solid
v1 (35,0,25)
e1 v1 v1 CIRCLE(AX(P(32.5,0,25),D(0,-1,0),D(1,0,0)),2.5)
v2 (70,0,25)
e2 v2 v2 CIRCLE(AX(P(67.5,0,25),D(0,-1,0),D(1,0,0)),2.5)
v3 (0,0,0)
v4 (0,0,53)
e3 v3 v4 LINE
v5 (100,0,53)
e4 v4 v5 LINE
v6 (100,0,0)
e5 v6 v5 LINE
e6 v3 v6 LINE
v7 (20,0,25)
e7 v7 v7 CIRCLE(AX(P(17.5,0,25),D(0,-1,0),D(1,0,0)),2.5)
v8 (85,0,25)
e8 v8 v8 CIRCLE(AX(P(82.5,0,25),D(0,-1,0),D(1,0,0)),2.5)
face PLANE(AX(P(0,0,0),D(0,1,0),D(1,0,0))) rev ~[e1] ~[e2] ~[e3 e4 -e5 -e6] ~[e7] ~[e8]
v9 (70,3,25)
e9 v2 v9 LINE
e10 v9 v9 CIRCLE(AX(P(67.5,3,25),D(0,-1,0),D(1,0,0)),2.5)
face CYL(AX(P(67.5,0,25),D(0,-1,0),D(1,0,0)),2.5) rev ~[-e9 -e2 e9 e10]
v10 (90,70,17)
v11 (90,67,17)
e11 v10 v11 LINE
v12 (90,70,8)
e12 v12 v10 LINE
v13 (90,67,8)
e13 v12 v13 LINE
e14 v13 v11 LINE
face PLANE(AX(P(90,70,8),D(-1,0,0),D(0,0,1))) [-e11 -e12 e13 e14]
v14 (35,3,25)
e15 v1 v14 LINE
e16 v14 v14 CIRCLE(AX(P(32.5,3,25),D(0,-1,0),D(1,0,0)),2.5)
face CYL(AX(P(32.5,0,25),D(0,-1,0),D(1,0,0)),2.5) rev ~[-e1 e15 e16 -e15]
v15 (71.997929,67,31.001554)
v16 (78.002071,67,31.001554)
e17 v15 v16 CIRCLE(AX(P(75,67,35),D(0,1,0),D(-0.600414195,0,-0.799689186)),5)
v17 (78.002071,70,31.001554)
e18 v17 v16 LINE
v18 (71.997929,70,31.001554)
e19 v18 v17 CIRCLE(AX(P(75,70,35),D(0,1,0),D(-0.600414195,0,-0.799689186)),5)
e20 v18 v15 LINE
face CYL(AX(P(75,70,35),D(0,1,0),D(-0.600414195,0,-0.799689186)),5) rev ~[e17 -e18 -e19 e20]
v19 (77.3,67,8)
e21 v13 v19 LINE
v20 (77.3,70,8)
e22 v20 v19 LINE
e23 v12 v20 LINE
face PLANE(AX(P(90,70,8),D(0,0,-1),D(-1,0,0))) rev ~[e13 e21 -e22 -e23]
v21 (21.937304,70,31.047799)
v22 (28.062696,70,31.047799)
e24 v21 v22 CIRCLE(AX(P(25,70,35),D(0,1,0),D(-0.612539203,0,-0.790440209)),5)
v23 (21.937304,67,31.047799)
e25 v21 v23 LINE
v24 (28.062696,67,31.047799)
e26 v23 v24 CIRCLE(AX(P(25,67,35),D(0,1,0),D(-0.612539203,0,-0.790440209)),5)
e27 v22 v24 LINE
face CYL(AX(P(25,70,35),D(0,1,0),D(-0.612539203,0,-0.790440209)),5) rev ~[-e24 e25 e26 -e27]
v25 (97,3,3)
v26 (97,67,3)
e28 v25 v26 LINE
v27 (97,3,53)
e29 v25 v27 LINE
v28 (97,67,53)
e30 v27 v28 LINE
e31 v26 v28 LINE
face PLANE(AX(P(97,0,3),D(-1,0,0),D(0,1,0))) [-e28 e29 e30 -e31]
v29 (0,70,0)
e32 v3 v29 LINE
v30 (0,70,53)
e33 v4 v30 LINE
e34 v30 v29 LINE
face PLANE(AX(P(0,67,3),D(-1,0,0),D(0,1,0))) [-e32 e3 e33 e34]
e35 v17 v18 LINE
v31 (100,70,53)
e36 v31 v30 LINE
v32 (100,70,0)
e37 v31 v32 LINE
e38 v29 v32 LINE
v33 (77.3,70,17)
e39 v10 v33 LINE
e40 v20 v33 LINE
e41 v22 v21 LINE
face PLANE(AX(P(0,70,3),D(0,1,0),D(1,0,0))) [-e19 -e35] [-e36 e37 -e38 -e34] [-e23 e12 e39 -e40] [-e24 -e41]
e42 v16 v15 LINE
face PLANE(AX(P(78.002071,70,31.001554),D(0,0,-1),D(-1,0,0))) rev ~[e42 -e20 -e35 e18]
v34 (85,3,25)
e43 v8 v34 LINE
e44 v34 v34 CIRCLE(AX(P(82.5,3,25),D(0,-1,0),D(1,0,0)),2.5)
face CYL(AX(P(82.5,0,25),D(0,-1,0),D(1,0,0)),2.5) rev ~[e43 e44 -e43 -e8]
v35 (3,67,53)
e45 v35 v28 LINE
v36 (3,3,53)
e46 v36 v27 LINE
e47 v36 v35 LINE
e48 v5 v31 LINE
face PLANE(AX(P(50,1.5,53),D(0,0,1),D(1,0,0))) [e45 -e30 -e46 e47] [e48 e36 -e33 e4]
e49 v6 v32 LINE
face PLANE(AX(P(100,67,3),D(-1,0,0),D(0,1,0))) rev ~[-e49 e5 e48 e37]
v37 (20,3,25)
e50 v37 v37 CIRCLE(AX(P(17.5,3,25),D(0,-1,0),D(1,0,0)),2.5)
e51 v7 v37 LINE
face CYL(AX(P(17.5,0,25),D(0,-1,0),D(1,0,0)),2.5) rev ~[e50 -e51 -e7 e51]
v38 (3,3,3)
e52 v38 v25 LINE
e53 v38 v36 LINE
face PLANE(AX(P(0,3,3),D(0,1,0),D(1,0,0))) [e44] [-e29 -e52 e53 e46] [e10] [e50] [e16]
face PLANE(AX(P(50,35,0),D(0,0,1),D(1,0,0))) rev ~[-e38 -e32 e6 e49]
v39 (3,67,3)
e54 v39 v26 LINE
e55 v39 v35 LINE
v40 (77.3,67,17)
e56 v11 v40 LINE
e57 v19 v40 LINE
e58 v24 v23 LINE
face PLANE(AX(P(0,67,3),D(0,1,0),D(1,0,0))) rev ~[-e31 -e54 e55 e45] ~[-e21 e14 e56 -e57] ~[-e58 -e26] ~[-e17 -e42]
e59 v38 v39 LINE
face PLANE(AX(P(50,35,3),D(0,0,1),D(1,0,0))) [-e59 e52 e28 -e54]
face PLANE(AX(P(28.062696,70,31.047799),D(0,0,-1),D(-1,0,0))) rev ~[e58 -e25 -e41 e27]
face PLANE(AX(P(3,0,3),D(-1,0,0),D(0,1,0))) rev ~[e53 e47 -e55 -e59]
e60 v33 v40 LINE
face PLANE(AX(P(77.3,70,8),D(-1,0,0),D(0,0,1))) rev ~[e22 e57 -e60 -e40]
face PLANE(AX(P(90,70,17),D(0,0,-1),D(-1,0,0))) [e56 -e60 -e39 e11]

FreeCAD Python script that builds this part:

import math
import FreeCAD as App
import Part
import Sketcher
Q = App.Units.Quantity

doc = App.newDocument("Part")
body = doc.addObject("PartDesign::Body", "Body")

sketch1 = body.newObject("Sketcher::SketchObject", "Sketch")
sketch1.AttachmentSupport = (doc.getObject("XY_Plane"), [""])
sketch1.MapMode = "FlatFace"
sketch1.addGeometry(Part.LineSegment(App.Vector(0, 70, 0), App.Vector(0, 0, 0)), False)
sketch1.addGeometry(Part.LineSegment(App.Vector(0, 0, 0), App.Vector(100, 0, 0)), False)
sketch1.addGeometry(Part.LineSegment(App.Vector(100, 0, 0), App.Vector(100, 70, 0)), False)
sketch1.addGeometry(Part.LineSegment(App.Vector(100, 70, 0), App.Vector(0, 70, 0)), False)
sketch1.addConstraint(Sketcher.Constraint("Coincident", 0, 2, 1, 1))
sketch1.addConstraint(Sketcher.Constraint("Coincident", 1, 2, 2, 1))
sketch1.addConstraint(Sketcher.Constraint("Coincident", 2, 2, 3, 1))
sketch1.addConstraint(Sketcher.Constraint("Coincident", 3, 2, 0, 1))
sketch1.addConstraint(Sketcher.Constraint("Vertical", 0))
sketch1.addConstraint(Sketcher.Constraint("Horizontal", 1))
sketch1.addConstraint(Sketcher.Constraint("Vertical", 2))
sketch1.addConstraint(Sketcher.Constraint("Horizontal", 3))
sketch1.addConstraint(Sketcher.Constraint("Coincident", 0, 2, -1, 1))
sketch1.addConstraint(Sketcher.Constraint("DistanceX", 1, 1, 1, 2, Q("100 mm")))
sketch1.addConstraint(Sketcher.Constraint("DistanceY", 0, 2, 0, 1, Q("70 mm")))
pad1 = body.newObject("PartDesign::Pad", "Pad")
pad1.Profile = sketch1
pad1.Length = 3

sketch2 = body.newObject("Sketcher::SketchObject", "Sketch001")
sketch2.AttachmentSupport = (doc.getObject("XY_Plane"), [""])
sketch2.MapMode = "FlatFace"
sketch2.AttachmentOffset = App.Placement(App.Vector(0, 0, 3), App.Rotation())
sketch2.addGeometry(Part.LineSegment(App.Vector(0, 70, 0), App.Vector(0, 67, 0)), False)
sketch2.addGeometry(Part.LineSegment(App.Vector(0, 67, 0), App.Vector(100, 67, 0)), False)
sketch2.addGeometry(Part.LineSegment(App.Vector(100, 67, 0), App.Vector(100, 70, 0)), False)
sketch2.addGeometry(Part.LineSegment(App.Vector(100, 70, 0), App.Vector(0, 70, 0)), False)
sketch2.addGeometry(Part.LineSegment(App.Vector(0, 3, 0), App.Vector(0, 0, 0)), False)
sketch2.addGeometry(Part.LineSegment(App.Vector(0, 0, 0), App.Vector(100, 0, 0)), False)
sketch2.addGeometry(Part.LineSegment(App.Vector(100, 0, 0), App.Vector(100, 3, 0)), False)
sketch2.addGeometry(Part.LineSegment(App.Vector(100, 3, 0), App.Vector(0, 3, 0)), False)
sketch2.addConstraint(Sketcher.Constraint("Coincident", 0, 2, 1, 1))
sketch2.addConstraint(Sketcher.Constraint("Coincident", 1, 2, 2, 1))
sketch2.addConstraint(Sketcher.Constraint("Coincident", 2, 2, 3, 1))
sketch2.addConstraint(Sketcher.Constraint("Coincident", 3, 2, 0, 1))
sketch2.addConstraint(Sketcher.Constraint("Coincident", 4, 2, 5, 1))
sketch2.addConstraint(Sketcher.Constraint("Coincident", 5, 2, 6, 1))
sketch2.addConstraint(Sketcher.Constraint("Coincident", 6, 2, 7, 1))
sketch2.addConstraint(Sketcher.Constraint("Coincident", 7, 2, 4, 1))
sketch2.addConstraint(Sketcher.Constraint("Vertical", 0))
sketch2.addConstraint(Sketcher.Constraint("Horizontal", 1))
sketch2.addConstraint(Sketcher.Constraint("Vertical", 2))
sketch2.addConstraint(Sketcher.Constraint("Horizontal", 3))
sketch2.addConstraint(Sketcher.Constraint("Vertical", 4))
sketch2.addConstraint(Sketcher.Constraint("Horizontal", 5))
sketch2.addConstraint(Sketcher.Constraint("Vertical", 6))
sketch2.addConstraint(Sketcher.Constraint("Horizontal", 7))
sketch2.addConstraint(Sketcher.Constraint("Coincident", 4, 2, -1, 1))
sketch2.addConstraint(Sketcher.Constraint("PointOnObject", 0, 2, -2))
sketch2.addConstraint(Sketcher.Constraint("Vertical", 2, 2, 5, 2))
sketch2.addConstraint(Sketcher.Constraint("Equal", 2, 4))
sketch2.addConstraint(Sketcher.Constraint("DistanceX", 1, 1, 1, 2, Q("100 mm")))
sketch2.addConstraint(Sketcher.Constraint("DistanceY", 0, 2, 0, 1, Q("3 mm")))
sketch2.addConstraint(Sketcher.Constraint("DistanceY", -1, 1, 0, 2, Q("67 mm")))
pad2 = body.newObject("PartDesign::Pad", "Pad001")
pad2.Profile = sketch2
pad2.Length = 50

sketch3 = body.newObject("Sketcher::SketchObject", "Sketch002")
sketch3.AttachmentSupport = (doc.getObject("XY_Plane"), [""])
sketch3.MapMode = "FlatFace"
sketch3.AttachmentOffset = App.Placement(App.Vector(0, 0, 3), App.Rotation())
sketch3.addGeometry(Part.LineSegment(App.Vector(0, 70, 0), App.Vector(0, 0, 0)), False)
sketch3.addGeometry(Part.LineSegment(App.Vector(0, 0, 0), App.Vector(3, 0, 0)), False)
sketch3.addGeometry(Part.LineSegment(App.Vector(3, 0, 0), App.Vector(3, 70, 0)), False)
sketch3.addGeometry(Part.LineSegment(App.Vector(3, 70, 0), App.Vector(0, 70, 0)), False)
sketch3.addGeometry(Part.LineSegment(App.Vector(97, 70, 0), App.Vector(97, 0, 0)), False)
sketch3.addGeometry(Part.LineSegment(App.Vector(97, 0, 0), App.Vector(100, 0, 0)), False)
sketch3.addGeometry(Part.LineSegment(App.Vector(100, 0, 0), App.Vector(100, 70, 0)), False)
sketch3.addGeometry(Part.LineSegment(App.Vector(100, 70, 0), App.Vector(97, 70, 0)), False)
sketch3.addConstraint(Sketcher.Constraint("Coincident", 0, 2, 1, 1))
sketch3.addConstraint(Sketcher.Constraint("Coincident", 1, 2, 2, 1))
sketch3.addConstraint(Sketcher.Constraint("Coincident", 2, 2, 3, 1))
sketch3.addConstraint(Sketcher.Constraint("Coincident", 3, 2, 0, 1))
sketch3.addConstraint(Sketcher.Constraint("Coincident", 4, 2, 5, 1))
sketch3.addConstraint(Sketcher.Constraint("Coincident", 5, 2, 6, 1))
sketch3.addConstraint(Sketcher.Constraint("Coincident", 6, 2, 7, 1))
sketch3.addConstraint(Sketcher.Constraint("Coincident", 7, 2, 4, 1))
sketch3.addConstraint(Sketcher.Constraint("Vertical", 0))
sketch3.addConstraint(Sketcher.Constraint("Horizontal", 1))
sketch3.addConstraint(Sketcher.Constraint("Vertical", 2))
sketch3.addConstraint(Sketcher.Constraint("Horizontal", 3))
sketch3.addConstraint(Sketcher.Constraint("Vertical", 4))
sketch3.addConstraint(Sketcher.Constraint("Horizontal", 5))
sketch3.addConstraint(Sketcher.Constraint("Vertical", 6))
sketch3.addConstraint(Sketcher.Constraint("Horizontal", 7))
sketch3.addConstraint(Sketcher.Constraint("Coincident", 0, 2, -1, 1))
sketch3.addConstraint(Sketcher.Constraint("PointOnObject", 4, 2, -1))
sketch3.addConstraint(Sketcher.Constraint("Horizontal", 3, 2, 6, 2))
sketch3.addConstraint(Sketcher.Constraint("Equal", 3, 5))
sketch3.addConstraint(Sketcher.Constraint("DistanceX", 1, 1, 1, 2, Q("3 mm")))
sketch3.addConstraint(Sketcher.Constraint("DistanceY", 0, 2, 0, 1, Q("70 mm")))
sketch3.addConstraint(Sketcher.Constraint("DistanceX", -1, 1, 4, 2, Q("97 mm")))
pad3 = body.newObject("PartDesign::Pad", "Pad002")
pad3.Profile = sketch3
pad3.Length = 50

sketch4 = body.newObject("Sketcher::SketchObject", "Sketch003")
sketch4.AttachmentSupport = (doc.getObject("XZ_Plane"), [""])
sketch4.MapMode = "FlatFace"
sketch4.AttachmentOffset = App.Placement(App.Vector(0, 0, -70), App.Rotation())
sketch4.addGeometry(Part.ArcOfCircle(Part.Circle(App.Vector(75, 35, 0), App.Vector(0, 0, 1), 5), math.radians(-53.100432), math.radians(233.100432)), False)
sketch4.addGeometry(Part.LineSegment(App.Vector(78.002071, 31.001554, 0), App.Vector(71.997929, 31.001554, 0)), False)
sketch4.addGeometry(Part.ArcOfCircle(Part.Circle(App.Vector(25, 35, 0), App.Vector(0, 0, 1), 5), math.radians(-52.226669), math.radians(232.226669)), False)
sketch4.addGeometry(Part.LineSegment(App.Vector(28.062696, 31.047799, 0), App.Vector(21.937304, 31.047799, 0)), False)
sketch4.addConstraint(Sketcher.Constraint("Coincident", 0, 1, 1, 1))
sketch4.addConstraint(Sketcher.Constraint("Coincident", 1, 2, 0, 2))
sketch4.addConstraint(Sketcher.Constraint("Coincident", 2, 1, 3, 1))
sketch4.addConstraint(Sketcher.Constraint("Coincident", 3, 2, 2, 2))
sketch4.addConstraint(Sketcher.Constraint("Horizontal", 1))
sketch4.addConstraint(Sketcher.Constraint("Horizontal", 3))
sketch4.addConstraint(Sketcher.Constraint("Equal", 0, 2))
sketch4.addConstraint(Sketcher.Constraint("Horizontal", 0, 3, 2, 3))
sketch4.addConstraint(Sketcher.Constraint("Radius", 0, Q("5 mm")))
sketch4.addConstraint(Sketcher.Constraint("DistanceX", -1, 1, 0, 3, Q("75 mm")))
sketch4.addConstraint(Sketcher.Constraint("DistanceY", -1, 1, 0, 3, Q("35 mm")))
sketch4.addConstraint(Sketcher.Constraint("DistanceX", -1, 1, 2, 3, Q("25 mm")))
sketch4.addConstraint(Sketcher.Constraint("DistanceX", 3, 2, 3, 1, Q("6.125392 mm")))
sketch4.addConstraint(Sketcher.Constraint("DistanceX", 1, 2, 1, 1, Q("6.004142 mm")))
pocket1 = body.newObject("PartDesign::Pocket", "Pocket")
pocket1.Profile = sketch4
pocket1.Length = 4
pocket1.Reversed = True

sketch5 = body.newObject("Sketcher::SketchObject", "Sketch004")
sketch5.AttachmentSupport = (doc.getObject("XZ_Plane"), [""])
sketch5.MapMode = "FlatFace"
sketch5.addGeometry(Part.Circle(App.Vector(17.5, 25, 0), App.Vector(0, 0, 1), 2.5), False)
sketch5.addGeometry(Part.Circle(App.Vector(32.5, 25, 0), App.Vector(0, 0, 1), 2.5), False)
sketch5.addGeometry(Part.Circle(App.Vector(67.5, 25, 0), App.Vector(0, 0, 1), 2.5), False)
sketch5.addGeometry(Part.Circle(App.Vector(82.5, 25, 0), App.Vector(0, 0, 1), 2.5), False)
sketch5.addConstraint(Sketcher.Constraint("Equal", 0, 1))
sketch5.addConstraint(Sketcher.Constraint("Equal", 1, 2))
sketch5.addConstraint(Sketcher.Constraint("Equal", 2, 3))
sketch5.addConstraint(Sketcher.Constraint("Horizontal", 0, 3, 1, 3))
sketch5.addConstraint(Sketcher.Constraint("Horizontal", 1, 3, 2, 3))
sketch5.addConstraint(Sketcher.Constraint("Horizontal", 2, 3, 3, 3))
sketch5.addConstraint(Sketcher.Constraint("Diameter", 0, Q("5 mm")))
sketch5.addConstraint(Sketcher.Constraint("DistanceY", -1, 1, 0, 3, Q("25 mm")))
sketch5.addConstraint(Sketcher.Constraint("DistanceX", 0, 3, 1, 3, Q("15 mm")))
sketch5.addConstraint(Sketcher.Constraint("DistanceX", 1, 3, 2, 3, Q("35 mm")))
sketch5.addConstraint(Sketcher.Constraint("DistanceX", 2, 3, 3, 3, Q("15 mm")))
sketch5.addConstraint(Sketcher.Constraint("DistanceX", -1, 1, 0, 3, Q("17.5 mm")))
pocket2 = body.newObject("PartDesign::Pocket", "Pocket001")
pocket2.Profile = sketch5
pocket2.Length = 4

sketch6 = body.newObject("Sketcher::SketchObject", "Sketch005")
sketch6.AttachmentSupport = (doc.getObject("XZ_Plane"), [""])
sketch6.MapMode = "FlatFace"
sketch6.AttachmentOffset = App.Placement(App.Vector(0, 0, -70), App.Rotation())
sketch6.addGeometry(Part.LineSegment(App.Vector(90, 17, 0), App.Vector(90, 8, 0)), False)
sketch6.addGeometry(Part.LineSegment(App.Vector(90, 8, 0), App.Vector(77.3, 8, 0)), False)
sketch6.addGeometry(Part.LineSegment(App.Vector(77.3, 8, 0), App.Vector(77.3, 17, 0)), False)
sketch6.addGeometry(Part.LineSegment(App.Vector(77.3, 17, 0), App.Vector(90, 17, 0)), False)
sketch6.addConstraint(Sketcher.Constraint("Coincident", 0, 2, 1, 1))
sketch6.addConstraint(Sketcher.Constraint("Coincident", 1, 2, 2, 1))
sketch6.addConstraint(Sketcher.Constraint("Coincident", 2, 2, 3, 1))
sketch6.addConstraint(Sketcher.Constraint("Coincident", 3, 2, 0, 1))
sketch6.addConstraint(Sketcher.Constraint("Vertical", 0))
sketch6.addConstraint(Sketcher.Constraint("Horizontal", 1))
sketch6.addConstraint(Sketcher.Constraint("Vertical", 2))
sketch6.addConstraint(Sketcher.Constraint("Horizontal", 3))
sketch6.addConstraint(Sketcher.Constraint("DistanceY", 0, 2, 0, 1, Q("9 mm")))
sketch6.addConstraint(Sketcher.Constraint("DistanceX", 1, 2, 1, 1, Q("12.7 mm")))
sketch6.addConstraint(Sketcher.Constraint("DistanceX", -1, 1, 0, 2, Q("90 mm")))
sketch6.addConstraint(Sketcher.Constraint("DistanceY", -1, 1, 0, 2, Q("8 mm")))
pocket3 = body.newObject("PartDesign::Pocket", "Pocket002")
pocket3.Profile = sketch6
pocket3.Length = 4
pocket3.Reversed = True

doc.recompute()
